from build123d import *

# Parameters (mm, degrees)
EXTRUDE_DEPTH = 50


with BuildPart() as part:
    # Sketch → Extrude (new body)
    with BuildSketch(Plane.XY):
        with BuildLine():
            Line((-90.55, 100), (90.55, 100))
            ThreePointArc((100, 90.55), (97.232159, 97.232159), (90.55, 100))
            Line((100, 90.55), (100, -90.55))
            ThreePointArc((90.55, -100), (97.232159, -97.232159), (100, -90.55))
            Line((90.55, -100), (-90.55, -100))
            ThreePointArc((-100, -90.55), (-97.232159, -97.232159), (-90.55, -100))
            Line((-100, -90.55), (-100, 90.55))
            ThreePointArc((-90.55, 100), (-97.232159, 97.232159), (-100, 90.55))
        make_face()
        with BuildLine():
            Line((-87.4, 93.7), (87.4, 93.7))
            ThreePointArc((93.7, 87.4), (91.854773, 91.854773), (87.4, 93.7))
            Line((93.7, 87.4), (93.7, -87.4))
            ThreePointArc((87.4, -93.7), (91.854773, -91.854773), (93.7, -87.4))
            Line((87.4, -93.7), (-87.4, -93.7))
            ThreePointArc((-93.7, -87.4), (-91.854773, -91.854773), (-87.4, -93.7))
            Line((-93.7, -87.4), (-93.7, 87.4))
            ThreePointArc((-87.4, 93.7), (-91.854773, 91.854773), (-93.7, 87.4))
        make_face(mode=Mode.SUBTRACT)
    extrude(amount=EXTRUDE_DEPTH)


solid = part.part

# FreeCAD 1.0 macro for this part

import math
import FreeCAD as App
import Part
import Sketcher

V = App.Vector
Q = App.Units.Quantity

doc = App.newDocument("Part")
body = doc.addObject("PartDesign::Body", "Body")

sketch1 = body.newObject("Sketcher::SketchObject", "Sketch")
sketch1.AttachmentSupport = (doc.getObject("XY_Plane"), [""])
sketch1.MapMode = "FlatFace"
sketch1.addGeometry([
    Part.LineSegment(V(91, 100, 0), V(-91, 100, 0)),
    Part.ArcOfCircle(Part.Circle(V(-91, 91, 0), V(0, 0, 1), 9), math.radians(90), math.radians(180)),
    Part.LineSegment(V(-100, 91, 0), V(-100, -91, 0)),
    Part.ArcOfCircle(Part.Circle(V(-91, -91, 0), V(0, 0, 1), 9), math.radians(-180), math.radians(-90)),
    Part.LineSegment(V(-91, -100, 0), V(91, -100, 0)),
    Part.ArcOfCircle(Part.Circle(V(91, -91, 0), V(0, 0, 1), 9), math.radians(-90), math.radians(0)),
    Part.LineSegment(V(100, -91, 0), V(100, 91, 0)),
    Part.ArcOfCircle(Part.Circle(V(91, 91, 0), V(0, 0, 1), 9), math.radians(0), math.radians(90)),
    Part.LineSegment(V(-87, 94, 0), V(87, 94, 0)),
    Part.ArcOfCircle(Part.Circle(V(87, 87, 0), V(0, 0, 1), 6), math.radians(0), math.radians(90)),
    Part.LineSegment(V(94, 87, 0), V(94, -87, 0)),
    Part.ArcOfCircle(Part.Circle(V(87, -87, 0), V(0, 0, 1), 6), math.radians(-90), math.radians(0)),
    Part.LineSegment(V(87, -94, 0), V(-87, -94, 0)),
    Part.ArcOfCircle(Part.Circle(V(-87, -87, 0), V(0, 0, 1), 6), math.radians(180), math.radians(270)),
    Part.LineSegment(V(-94, -87, 0), V(-94, 87, 0)),
    Part.ArcOfCircle(Part.Circle(V(-87, 87, 0), V(0, 0, 1), 6), math.radians(90), math.radians(180)),
], False)
sketch1.addConstraint([
    Sketcher.Constraint("Tangent", 0, 2, 1, 1),
    Sketcher.Constraint("Tangent", 1, 2, 2, 1),
    Sketcher.Constraint("Tangent", 2, 2, 3, 1),
    Sketcher.Constraint("Tangent", 3, 2, 4, 1),
    Sketcher.Constraint("Tangent", 4, 2, 5, 1),
    Sketcher.Constraint("Tangent", 5, 2, 6, 1),
    Sketcher.Constraint("Tangent", 6, 2, 7, 1),
    Sketcher.Constraint("Tangent", 7, 2, 0, 1),
    Sketcher.Constraint("Tangent", 8, 2, 9, 2),
    Sketcher.Constraint("Tangent", 9, 1, 10, 1),
    Sketcher.Constraint("Tangent", 10, 2, 11, 2),
    Sketcher.Constraint("Tangent", 11, 1, 12, 1),
    Sketcher.Constraint("Tangent", 12, 2, 13, 2),
    Sketcher.Constraint("Tangent", 13, 1, 14, 1),
    Sketcher.Constraint("Tangent", 14, 2, 15, 2),
    Sketcher.Constraint("Tangent", 15, 1, 8, 1),
    Sketcher.Constraint("Horizontal", 0),
    Sketcher.Constraint("Vertical", 2),
    Sketcher.Constraint("Horizontal", 4),
    Sketcher.Constraint("Vertical", 6),
    Sketcher.Constraint("Horizontal", 8),
    Sketcher.Constraint("Vertical", 10),
    Sketcher.Constraint("Horizontal", 12),
    Sketcher.Constraint("Vertical", 14),
    Sketcher.Constraint("Equal", 1, 3),
    Sketcher.Constraint("Equal", 3, 5),
    Sketcher.Constraint("Equal", 5, 7),
    Sketcher.Constraint("Equal", 9, 11),
    Sketcher.Constraint("Equal", 11, 13),
    Sketcher.Constraint("Equal", 13, 15),
    Sketcher.Constraint("Symmetric", 1, 3, 5, 3, -1, 1),
    Sketcher.Constraint("Symmetric", 9, 3, 13, 3, -1, 1),
    Sketcher.Constraint("Equal", 4, 2),
    Sketcher.Constraint("Equal", 12, 10),
    Sketcher.Constraint("Radius", 9, Q("6.299999 mm")),
    Sketcher.Constraint("Radius", 1, Q("9.45 mm")),
    Sketcher.Constraint("DistanceX", 0, 2, 0, 1, Q("181.1 mm")),
    Sketcher.Constraint("DistanceX", 8, 1, 8, 2, Q("174.8 mm")),
])
pad1 = body.newObject("PartDesign::Pad", "Pad")
pad1.Profile = sketch1
pad1.Length = 50

doc.recompute()
